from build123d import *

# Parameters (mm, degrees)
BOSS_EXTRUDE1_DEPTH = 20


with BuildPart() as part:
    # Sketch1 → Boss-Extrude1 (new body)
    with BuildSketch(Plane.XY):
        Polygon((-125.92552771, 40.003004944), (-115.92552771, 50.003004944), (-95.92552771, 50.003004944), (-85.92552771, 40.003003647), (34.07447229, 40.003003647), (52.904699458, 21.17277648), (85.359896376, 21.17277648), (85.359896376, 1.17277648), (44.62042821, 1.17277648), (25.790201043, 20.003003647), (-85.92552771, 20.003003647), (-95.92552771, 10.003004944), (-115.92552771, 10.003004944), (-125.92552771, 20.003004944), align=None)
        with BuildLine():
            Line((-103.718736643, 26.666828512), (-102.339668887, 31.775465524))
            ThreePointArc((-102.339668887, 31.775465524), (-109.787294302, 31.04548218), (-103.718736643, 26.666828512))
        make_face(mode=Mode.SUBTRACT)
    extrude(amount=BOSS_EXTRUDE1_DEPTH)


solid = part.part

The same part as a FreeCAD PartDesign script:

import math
import FreeCAD as App
import Part
import Sketcher
from FreeCAD import Vector
Q = App.Units.Quantity

doc = App.newDocument("Part")
body = doc.addObject("PartDesign::Body", "Body")

# Sketch on XY plane
sketch1 = body.newObject("Sketcher::SketchObject", "Sketch")
sketch1.AttachmentSupport = (doc.getObject("XY_Plane"), [""])
sketch1.MapMode = "FlatFace"
sketch1.addGeometry([
    Part.LineSegment(Vector(-115.9, 50, 0), Vector(-125.9, 40, 0)),  # 0
    Part.LineSegment(Vector(-125.9, 40, 0), Vector(-125.9, 20, 0)),  # 1
    Part.LineSegment(Vector(-125.9, 20, 0), Vector(-115.9, 10, 0)),  # 2
    Part.LineSegment(Vector(-115.9, 10, 0), Vector(-95.9, 10, 0)),  # 3
    Part.LineSegment(Vector(-95.9, 10, 0), Vector(-85.9, 20, 0)),  # 4
    Part.LineSegment(Vector(-85.9, 20, 0), Vector(25.8, 20, 0)),  # 5
    Part.LineSegment(Vector(25.8, 20, 0), Vector(44.6, 1.2, 0)),  # 6
    Part.LineSegment(Vector(44.6, 1.2, 0), Vector(85.4, 1.2, 0)),  # 7
    Part.LineSegment(Vector(85.4, 1.2, 0), Vector(85.4, 21.2, 0)),  # 8
    Part.LineSegment(Vector(85.4, 21.2, 0), Vector(52.9, 21.2, 0)),  # 9
    Part.LineSegment(Vector(52.9, 21.2, 0), Vector(34.1, 40, 0)),  # 10
    Part.LineSegment(Vector(34.1, 40, 0), Vector(-85.9, 40, 0)),  # 11
    Part.LineSegment(Vector(-85.9, 40, 0), Vector(-95.9, 50, 0)),  # 12
    Part.LineSegment(Vector(-95.9, 50, 0), Vector(-115.9, 50, 0)),  # 13
    Part.ArcOfCircle(Part.Circle(Vector(-105.9, 30, 0), Vector(0, 0, 1), 4), math.radians(26), math.radians(303)),  # 14
    Part.LineSegment(Vector(-102.3, 31.8, 0), Vector(-103.7, 26.7, 0)),  # 15
], False)
sketch1.addConstraint([
    Sketcher.Constraint("Coincident", 0, 2, 1, 1),
    Sketcher.Constraint("Coincident", 1, 2, 2, 1),
    Sketcher.Constraint("Coincident", 2, 2, 3, 1),
    Sketcher.Constraint("Coincident", 3, 2, 4, 1),
    Sketcher.Constraint("Coincident", 4, 2, 5, 1),
    Sketcher.Constraint("Coincident", 5, 2, 6, 1),
    Sketcher.Constraint("Coincident", 6, 2, 7, 1),
    Sketcher.Constraint("Coincident", 7, 2, 8, 1),
    Sketcher.Constraint("Coincident", 8, 2, 9, 1),
    Sketcher.Constraint("Coincident", 9, 2, 10, 1),
    Sketcher.Constraint("Coincident", 10, 2, 11, 1),
    Sketcher.Constraint("Coincident", 11, 2, 12, 1),
    Sketcher.Constraint("Coincident", 12, 2, 13, 1),
    Sketcher.Constraint("Coincident", 13, 2, 0, 1),
    Sketcher.Constraint("Coincident", 14, 1, 15, 1),
    Sketcher.Constraint("Coincident", 15, 2, 14, 2),
    Sketcher.Constraint("Vertical", 1),
    Sketcher.Constraint("Horizontal", 3),
    Sketcher.Constraint("Horizontal", 5),
    Sketcher.Constraint("Horizontal", 7),
    Sketcher.Constraint("Vertical", 8),
    Sketcher.Constraint("Horizontal", 9),
    Sketcher.Constraint("Horizontal", 11),
    Sketcher.Constraint("Horizontal", 13),
    Sketcher.Constraint("Perpendicular", 0, 2),
    Sketcher.Constraint("Perpendicular", 2, 4),
    Sketcher.Constraint("Perpendicular", 4, 6),
    Sketcher.Constraint("Parallel", 6, 10),
    Sketcher.Constraint("Parallel", 10, 12),
    Sketcher.Constraint("Horizontal", 1, 2, 4, 2),
    Sketcher.Constraint("Horizontal", 0, 2, 10, 2),
    Sketcher.Constraint("Vertical", 4, 2, 11, 2),
    Sketcher.Constraint("Vertical", 3, 2, 12, 2),
    Sketcher.Constraint("Vertical", 2, 2, 13, 2),
    Sketcher.Constraint("Equal", 13, 1),
    Sketcher.Constraint("Equal", 1, 8),
    Sketcher.Constraint("Radius", 14, Q("4 mm")),
    Sketcher.Constraint("DistanceX", 3, 1, 3, 2, Q("20 mm")),
    Sketcher.Constraint("DistanceX", 11, 2, 11, 1, Q("120 mm")),
    Sketcher.Constraint("DistanceX", 0, 2, 14, 3, Q("20 mm")),
    Sketcher.Constraint("DistanceY", 14, 3, 0, 2, Q("10 mm")),
    Sketcher.Constraint("DistanceX", 1, 2, 2, 2, Q("10 mm")),
    Sketcher.Constraint("DistanceX", 5, 1, 5, 2, Q("111.715729 mm")),
    Sketcher.Constraint("DistanceX", 7, 1, 7, 2, Q("40.739468 mm")),
    Sketcher.Constraint("DistanceX", -1, 1, 5, 2, Q("25.790201 mm")),
    Sketcher.Constraint("DistanceX", -1, 1, 9, 2, Q("52.904699 mm")),
    Sketcher.Constraint("DistanceX", 14, 1, -1, 1, Q("102.339669 mm")),
    Sketcher.Constraint("DistanceY", -1, 1, 15, 2, Q("26.666829 mm")),
    Sketcher.Constraint("DistanceX", 14, 3, 15, 2, Q("2.206791 mm")),
])
pad1 = body.newObject("PartDesign::Pad", "Pad")
pad1.Profile = sketch1
pad1.Length = 20

doc.recompute()
